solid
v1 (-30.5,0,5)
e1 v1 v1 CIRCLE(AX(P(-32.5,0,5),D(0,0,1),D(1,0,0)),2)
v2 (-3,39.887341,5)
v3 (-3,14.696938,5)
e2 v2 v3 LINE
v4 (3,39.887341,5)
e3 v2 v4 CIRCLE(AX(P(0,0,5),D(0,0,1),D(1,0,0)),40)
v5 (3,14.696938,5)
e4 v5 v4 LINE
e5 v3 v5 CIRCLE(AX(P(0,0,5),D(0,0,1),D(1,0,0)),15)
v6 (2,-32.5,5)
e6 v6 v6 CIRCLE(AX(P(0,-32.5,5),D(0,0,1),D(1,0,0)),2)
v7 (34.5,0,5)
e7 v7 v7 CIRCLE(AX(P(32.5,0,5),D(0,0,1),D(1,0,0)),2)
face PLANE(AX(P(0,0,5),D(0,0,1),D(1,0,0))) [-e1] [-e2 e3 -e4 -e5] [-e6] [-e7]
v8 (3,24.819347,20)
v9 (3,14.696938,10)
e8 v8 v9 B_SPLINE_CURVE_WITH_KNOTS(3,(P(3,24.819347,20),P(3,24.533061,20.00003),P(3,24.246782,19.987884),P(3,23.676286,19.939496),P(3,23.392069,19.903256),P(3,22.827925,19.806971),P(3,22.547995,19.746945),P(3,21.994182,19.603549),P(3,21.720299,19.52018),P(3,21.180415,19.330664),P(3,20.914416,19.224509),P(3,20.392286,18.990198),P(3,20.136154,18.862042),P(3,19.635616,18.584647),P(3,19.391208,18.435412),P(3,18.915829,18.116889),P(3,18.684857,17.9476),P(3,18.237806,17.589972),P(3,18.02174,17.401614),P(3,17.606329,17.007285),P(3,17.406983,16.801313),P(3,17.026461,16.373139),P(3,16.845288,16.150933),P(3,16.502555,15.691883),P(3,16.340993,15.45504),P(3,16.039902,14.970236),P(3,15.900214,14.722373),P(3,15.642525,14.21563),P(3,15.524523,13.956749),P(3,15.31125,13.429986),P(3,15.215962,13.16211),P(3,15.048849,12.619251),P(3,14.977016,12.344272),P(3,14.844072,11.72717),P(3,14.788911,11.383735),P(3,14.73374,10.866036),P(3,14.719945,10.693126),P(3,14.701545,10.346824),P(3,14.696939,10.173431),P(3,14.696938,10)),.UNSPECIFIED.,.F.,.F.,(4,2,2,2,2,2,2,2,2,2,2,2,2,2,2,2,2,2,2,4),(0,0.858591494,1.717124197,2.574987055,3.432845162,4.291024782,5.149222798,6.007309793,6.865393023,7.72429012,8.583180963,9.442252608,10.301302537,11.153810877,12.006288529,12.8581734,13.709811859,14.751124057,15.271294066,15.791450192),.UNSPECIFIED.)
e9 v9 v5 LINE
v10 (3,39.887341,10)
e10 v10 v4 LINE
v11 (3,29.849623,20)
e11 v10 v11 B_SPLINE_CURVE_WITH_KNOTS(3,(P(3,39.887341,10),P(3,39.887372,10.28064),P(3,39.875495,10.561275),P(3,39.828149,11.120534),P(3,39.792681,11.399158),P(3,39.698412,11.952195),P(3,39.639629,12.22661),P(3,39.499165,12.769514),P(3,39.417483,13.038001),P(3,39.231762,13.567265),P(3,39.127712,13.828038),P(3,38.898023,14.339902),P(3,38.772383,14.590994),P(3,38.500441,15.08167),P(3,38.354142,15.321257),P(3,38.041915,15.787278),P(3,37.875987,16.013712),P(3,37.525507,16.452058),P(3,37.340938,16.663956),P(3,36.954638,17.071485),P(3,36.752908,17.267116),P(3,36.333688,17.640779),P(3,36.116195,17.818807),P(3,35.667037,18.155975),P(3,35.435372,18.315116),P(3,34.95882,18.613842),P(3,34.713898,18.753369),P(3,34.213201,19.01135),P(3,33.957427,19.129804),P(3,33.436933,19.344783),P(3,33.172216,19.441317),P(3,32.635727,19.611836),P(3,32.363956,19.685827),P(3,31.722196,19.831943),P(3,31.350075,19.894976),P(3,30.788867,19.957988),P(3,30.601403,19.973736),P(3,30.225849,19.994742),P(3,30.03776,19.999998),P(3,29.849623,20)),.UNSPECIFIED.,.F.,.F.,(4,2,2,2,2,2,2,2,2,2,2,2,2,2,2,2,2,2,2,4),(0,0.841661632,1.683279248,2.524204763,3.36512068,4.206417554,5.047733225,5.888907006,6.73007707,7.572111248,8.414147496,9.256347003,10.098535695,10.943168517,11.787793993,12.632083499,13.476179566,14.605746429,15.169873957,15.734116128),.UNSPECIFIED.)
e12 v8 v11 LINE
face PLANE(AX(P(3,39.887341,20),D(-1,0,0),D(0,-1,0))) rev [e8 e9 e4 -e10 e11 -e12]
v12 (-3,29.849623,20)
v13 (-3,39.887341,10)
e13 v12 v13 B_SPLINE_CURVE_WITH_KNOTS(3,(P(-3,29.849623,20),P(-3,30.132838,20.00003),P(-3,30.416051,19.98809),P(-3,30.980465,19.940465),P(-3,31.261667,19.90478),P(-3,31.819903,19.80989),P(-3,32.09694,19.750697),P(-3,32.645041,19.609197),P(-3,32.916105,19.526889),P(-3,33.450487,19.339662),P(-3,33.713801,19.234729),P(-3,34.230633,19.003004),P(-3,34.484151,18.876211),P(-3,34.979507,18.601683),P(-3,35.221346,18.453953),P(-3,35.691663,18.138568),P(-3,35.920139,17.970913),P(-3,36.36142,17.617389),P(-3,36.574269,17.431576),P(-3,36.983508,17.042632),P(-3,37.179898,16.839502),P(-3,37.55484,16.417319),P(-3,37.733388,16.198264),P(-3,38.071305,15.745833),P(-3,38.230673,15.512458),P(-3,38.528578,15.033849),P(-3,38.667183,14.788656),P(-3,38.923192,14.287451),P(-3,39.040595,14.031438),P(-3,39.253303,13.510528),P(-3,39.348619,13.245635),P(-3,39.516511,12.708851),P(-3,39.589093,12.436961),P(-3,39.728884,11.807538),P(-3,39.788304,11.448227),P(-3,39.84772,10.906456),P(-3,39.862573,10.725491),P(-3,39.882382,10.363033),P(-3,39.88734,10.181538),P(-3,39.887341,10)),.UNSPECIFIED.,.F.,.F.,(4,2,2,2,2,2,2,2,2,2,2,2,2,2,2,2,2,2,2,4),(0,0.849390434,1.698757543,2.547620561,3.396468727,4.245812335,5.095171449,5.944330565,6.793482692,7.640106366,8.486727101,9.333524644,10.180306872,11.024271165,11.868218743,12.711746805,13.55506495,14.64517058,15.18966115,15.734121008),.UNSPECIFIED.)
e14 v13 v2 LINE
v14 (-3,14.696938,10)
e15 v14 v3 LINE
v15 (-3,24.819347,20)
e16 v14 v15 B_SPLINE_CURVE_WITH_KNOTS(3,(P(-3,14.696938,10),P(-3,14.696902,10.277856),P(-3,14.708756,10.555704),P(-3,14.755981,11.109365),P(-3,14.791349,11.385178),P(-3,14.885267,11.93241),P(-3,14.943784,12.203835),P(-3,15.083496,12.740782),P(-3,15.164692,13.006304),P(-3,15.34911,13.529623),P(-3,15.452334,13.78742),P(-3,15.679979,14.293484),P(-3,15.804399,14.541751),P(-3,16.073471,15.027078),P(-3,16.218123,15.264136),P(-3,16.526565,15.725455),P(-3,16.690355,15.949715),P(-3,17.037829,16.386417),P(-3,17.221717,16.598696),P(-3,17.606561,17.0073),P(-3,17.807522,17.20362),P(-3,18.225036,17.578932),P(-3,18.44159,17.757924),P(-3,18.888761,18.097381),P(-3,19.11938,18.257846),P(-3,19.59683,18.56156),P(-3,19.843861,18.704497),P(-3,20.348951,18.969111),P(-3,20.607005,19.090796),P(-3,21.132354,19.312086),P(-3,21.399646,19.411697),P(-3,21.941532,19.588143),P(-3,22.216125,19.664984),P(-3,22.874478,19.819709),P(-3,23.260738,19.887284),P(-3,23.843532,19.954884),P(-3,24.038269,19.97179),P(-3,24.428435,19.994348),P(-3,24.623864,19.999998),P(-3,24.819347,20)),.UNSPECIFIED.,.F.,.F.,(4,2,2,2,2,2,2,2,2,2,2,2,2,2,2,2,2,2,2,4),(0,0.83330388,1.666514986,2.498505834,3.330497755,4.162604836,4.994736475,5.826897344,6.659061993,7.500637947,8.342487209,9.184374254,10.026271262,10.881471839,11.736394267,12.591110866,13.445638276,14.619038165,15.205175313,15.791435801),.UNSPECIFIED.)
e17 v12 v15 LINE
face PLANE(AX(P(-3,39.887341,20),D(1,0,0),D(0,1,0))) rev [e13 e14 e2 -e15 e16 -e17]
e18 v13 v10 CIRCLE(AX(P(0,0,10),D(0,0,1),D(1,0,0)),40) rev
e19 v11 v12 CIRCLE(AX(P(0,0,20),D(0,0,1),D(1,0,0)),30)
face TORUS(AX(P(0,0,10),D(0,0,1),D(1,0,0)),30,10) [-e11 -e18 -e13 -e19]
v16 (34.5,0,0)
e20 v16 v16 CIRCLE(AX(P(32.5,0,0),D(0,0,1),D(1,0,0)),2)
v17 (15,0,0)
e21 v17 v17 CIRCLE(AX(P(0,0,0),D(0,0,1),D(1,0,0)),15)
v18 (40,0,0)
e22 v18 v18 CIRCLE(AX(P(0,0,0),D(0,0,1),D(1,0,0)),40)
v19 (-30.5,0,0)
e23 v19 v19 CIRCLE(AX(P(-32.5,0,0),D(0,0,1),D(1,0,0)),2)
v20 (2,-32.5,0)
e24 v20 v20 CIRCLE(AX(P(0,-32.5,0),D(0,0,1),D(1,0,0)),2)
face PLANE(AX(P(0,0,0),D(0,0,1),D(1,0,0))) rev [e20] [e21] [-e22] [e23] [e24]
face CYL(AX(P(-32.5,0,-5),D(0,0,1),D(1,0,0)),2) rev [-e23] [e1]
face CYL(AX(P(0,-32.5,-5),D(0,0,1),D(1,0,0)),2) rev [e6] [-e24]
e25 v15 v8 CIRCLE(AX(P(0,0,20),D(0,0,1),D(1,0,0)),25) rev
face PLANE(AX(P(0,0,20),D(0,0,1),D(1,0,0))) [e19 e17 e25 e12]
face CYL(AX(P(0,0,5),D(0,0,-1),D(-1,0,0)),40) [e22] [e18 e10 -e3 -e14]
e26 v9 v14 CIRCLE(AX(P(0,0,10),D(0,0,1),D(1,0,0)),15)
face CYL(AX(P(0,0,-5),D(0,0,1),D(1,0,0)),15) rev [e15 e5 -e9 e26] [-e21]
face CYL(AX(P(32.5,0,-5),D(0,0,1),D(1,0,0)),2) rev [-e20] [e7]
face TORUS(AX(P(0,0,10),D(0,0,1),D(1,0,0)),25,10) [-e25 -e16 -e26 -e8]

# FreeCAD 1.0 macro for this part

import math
import FreeCAD as App
import Part
import Sketcher

V = App.Vector
Q = App.Units.Quantity


def edges_at(feature, points):
    """Names of the edges that pass closest to the given points."""
    edges = feature.Shape.Edges
    near = lambda p: min(range(len(edges)), key=lambda i: edges[i].distToShape(Part.Vertex(*p))[0])
    return sorted({f"Edge{near(p) + 1}" for p in points})

doc = App.newDocument("Part")
params = doc.addObject("Spreadsheet::Sheet", "Params")
for row, (alias, value) in enumerate([
    ("sketch1_diameter", "80 mm"),
    ("pad1_length", "5 mm"),
    ("sketch2_diameter", "30 mm"),
    ("pocket1_length", "10 mm"),
    ("sketch3_diameter", "4 mm"),
    ("pocket2_length", "10 mm"),
    ("sketch4_radius", "15 mm"),
    ("sketch4_radius2", "40 mm"),
    ("pad2_length", "15 mm"),
    ("fillet_radius", "10 mm"),
], start=1):
    params.set(f"A{row}", alias)
    params.set(f"B{row}", "=" + value)
    params.setAlias(f"B{row}", alias)

body = doc.addObject("PartDesign::Body", "Body")

# Sketch on XY plane
sketch1 = doc.addObject("Sketcher::SketchObject", "Sketch")
body.addObject(sketch1)
sketch1.AttachmentSupport = (doc.XY_Plane, [""])
sketch1.MapMode = "FlatFace"
sketch1.addGeometry(Part.Circle(V(0, 0, 0), V(0, 0, 1), 40), False)
sketch1.addConstraint(Sketcher.Constraint("Coincident", 0, 3, -1, 1))
sketch1.addConstraint(Sketcher.Constraint("Diameter", 0, Q("80 mm")))
sketch1.setExpression("Constraints[1]", "Params.sketch1_diameter")
pad1 = doc.addObject("PartDesign::Pad", "Pad")
body.addObject(pad1)
pad1.Profile = sketch1
pad1.setExpression("Length", "Params.pad1_length")

# Sketch on XY plane
sketch2 = doc.addObject("Sketcher::SketchObject", "Sketch001")
body.addObject(sketch2)
sketch2.AttachmentSupport = (doc.XY_Plane, [""])
sketch2.MapMode = "FlatFace"
sketch2.AttachmentOffset = App.Placement(V(0, 0, 5), App.Rotation())
sketch2.addGeometry(Part.Circle(V(0, 0, 0), V(0, 0, 1), 15), False)
sketch2.addConstraint(Sketcher.Constraint("Coincident", 0, 3, -1, 1))
sketch2.addConstraint(Sketcher.Constraint("Diameter", 0, Q("30 mm")))
sketch2.setExpression("Constraints[1]", "Params.sketch2_diameter")
pocket1 = doc.addObject("PartDesign::Pocket", "Pocket")
body.addObject(pocket1)
pocket1.Profile = sketch2
pocket1.setExpression("Length", "Params.pocket1_length")

# Sketch on XY plane
sketch3 = doc.addObject("Sketcher::SketchObject", "Sketch002")
body.addObject(sketch3)
sketch3.AttachmentSupport = (doc.XY_Plane, [""])
sketch3.MapMode = "FlatFace"
sketch3.AttachmentOffset = App.Placement(V(0, 0, 5), App.Rotation())
sketch3.addGeometry(Part.Circle(V(0, -32.5, 0), V(0, 0, 1), 2), False)
sketch3.addGeometry(Part.Circle(V(32.5, 0, 0), V(0, 0, 1), 2), False)
sketch3.addGeometry(Part.Circle(V(-32.5, 0, 0), V(0, 0, 1), 2), False)
sketch3.addConstraint(Sketcher.Constraint("Equal", 0, 1))
sketch3.addConstraint(Sketcher.Constraint("Equal", 1, 2))
sketch3.addConstraint(Sketcher.Constraint("Symmetric", 1, 3, 2, 3, -1, 1))
sketch3.addConstraint(Sketcher.Constraint("PointOnObject", 0, 3, -2))
sketch3.addConstraint(Sketcher.Constraint("PointOnObject", 1, 3, -1))
sketch3.addConstraint(Sketcher.Constraint("Diameter", 0, Q("4 mm")))
sketch3.addConstraint(Sketcher.Constraint("DistanceX", 2, 3, 1, 3, Q("65 mm")))
sketch3.addConstraint(Sketcher.Constraint("DistanceY", 0, 3, -1, 1, Q("32.5 mm")))
sketch3.setExpression("Constraints[5]", "Params.sketch3_diameter")
pocket2 = doc.addObject("PartDesign::Pocket", "Pocket001")
body.addObject(pocket2)
pocket2.Profile = sketch3
pocket2.setExpression("Length", "Params.pocket2_length")

# Sketch on XY plane
sketch4 = doc.addObject("Sketcher::SketchObject", "Sketch003")
body.addObject(sketch4)
sketch4.AttachmentSupport = (doc.XY_Plane, [""])
sketch4.MapMode = "FlatFace"
sketch4.AttachmentOffset = App.Placement(V(0, 0, 5), App.Rotation())
sketch4.addGeometry(Part.LineSegment(V(-3, 40, 0), V(-3, 15, 0)), False)
sketch4.addGeometry(Part.ArcOfCircle(Part.Circle(V(0, 0, 0), V(0, 0, 1), 15), math.radians(78), math.radians(102)), False)
sketch4.addGeometry(Part.LineSegment(V(3, 15, 0), V(3, 40, 0)), False)
sketch4.addGeometry(Part.ArcOfCircle(Part.Circle(V(0, 0, 0), V(0, 0, 1), 40), math.radians(85.7), math.radians(94.3)), False)
sketch4.addConstraint(Sketcher.Constraint("Coincident", 0, 2, 1, 2))
sketch4.addConstraint(Sketcher.Constraint("Coincident", 1, 1, 2, 1))
sketch4.addConstraint(Sketcher.Constraint("Coincident", 2, 2, 3, 1))
sketch4.addConstraint(Sketcher.Constraint("Coincident", 3, 2, 0, 1))
sketch4.addConstraint(Sketcher.Constraint("Vertical", 0))
sketch4.addConstraint(Sketcher.Constraint("Vertical", 2))
sketch4.addConstraint(Sketcher.Constraint("Coincident", 1, 3, -1, 1))
sketch4.addConstraint(Sketcher.Constraint("Coincident", 3, 3, -1, 1))
sketch4.addConstraint(Sketcher.Constraint("Horizontal", 0, 2, 1, 1))
sketch4.addConstraint(Sketcher.Constraint("Radius", 1, Q("15 mm")))
sketch4.addConstraint(Sketcher.Constraint("Radius", 3, Q("40 mm")))
sketch4.addConstraint(Sketcher.Constraint("DistanceX", 0, 2, -1, 1, Q("3 mm")))
sketch4.setExpression("Constraints[9]", "Params.sketch4_radius")
sketch4.setExpression("Constraints[10]", "Params.sketch4_radius2")
pad2 = doc.addObject("PartDesign::Pad", "Pad001")
body.addObject(pad2)
pad2.Profile = sketch4
pad2.setExpression("Length", "Params.pad2_length")
doc.recompute()

fillet = doc.addObject("PartDesign::Fillet", "Fillet")
body.addObject(fillet)
fillet.Base = (pad2, edges_at(pad2, [(0, 40, 20), (0, 15, 20)]))
fillet.setExpression("Radius", "Params.fillet_radius")

doc.recompute()
